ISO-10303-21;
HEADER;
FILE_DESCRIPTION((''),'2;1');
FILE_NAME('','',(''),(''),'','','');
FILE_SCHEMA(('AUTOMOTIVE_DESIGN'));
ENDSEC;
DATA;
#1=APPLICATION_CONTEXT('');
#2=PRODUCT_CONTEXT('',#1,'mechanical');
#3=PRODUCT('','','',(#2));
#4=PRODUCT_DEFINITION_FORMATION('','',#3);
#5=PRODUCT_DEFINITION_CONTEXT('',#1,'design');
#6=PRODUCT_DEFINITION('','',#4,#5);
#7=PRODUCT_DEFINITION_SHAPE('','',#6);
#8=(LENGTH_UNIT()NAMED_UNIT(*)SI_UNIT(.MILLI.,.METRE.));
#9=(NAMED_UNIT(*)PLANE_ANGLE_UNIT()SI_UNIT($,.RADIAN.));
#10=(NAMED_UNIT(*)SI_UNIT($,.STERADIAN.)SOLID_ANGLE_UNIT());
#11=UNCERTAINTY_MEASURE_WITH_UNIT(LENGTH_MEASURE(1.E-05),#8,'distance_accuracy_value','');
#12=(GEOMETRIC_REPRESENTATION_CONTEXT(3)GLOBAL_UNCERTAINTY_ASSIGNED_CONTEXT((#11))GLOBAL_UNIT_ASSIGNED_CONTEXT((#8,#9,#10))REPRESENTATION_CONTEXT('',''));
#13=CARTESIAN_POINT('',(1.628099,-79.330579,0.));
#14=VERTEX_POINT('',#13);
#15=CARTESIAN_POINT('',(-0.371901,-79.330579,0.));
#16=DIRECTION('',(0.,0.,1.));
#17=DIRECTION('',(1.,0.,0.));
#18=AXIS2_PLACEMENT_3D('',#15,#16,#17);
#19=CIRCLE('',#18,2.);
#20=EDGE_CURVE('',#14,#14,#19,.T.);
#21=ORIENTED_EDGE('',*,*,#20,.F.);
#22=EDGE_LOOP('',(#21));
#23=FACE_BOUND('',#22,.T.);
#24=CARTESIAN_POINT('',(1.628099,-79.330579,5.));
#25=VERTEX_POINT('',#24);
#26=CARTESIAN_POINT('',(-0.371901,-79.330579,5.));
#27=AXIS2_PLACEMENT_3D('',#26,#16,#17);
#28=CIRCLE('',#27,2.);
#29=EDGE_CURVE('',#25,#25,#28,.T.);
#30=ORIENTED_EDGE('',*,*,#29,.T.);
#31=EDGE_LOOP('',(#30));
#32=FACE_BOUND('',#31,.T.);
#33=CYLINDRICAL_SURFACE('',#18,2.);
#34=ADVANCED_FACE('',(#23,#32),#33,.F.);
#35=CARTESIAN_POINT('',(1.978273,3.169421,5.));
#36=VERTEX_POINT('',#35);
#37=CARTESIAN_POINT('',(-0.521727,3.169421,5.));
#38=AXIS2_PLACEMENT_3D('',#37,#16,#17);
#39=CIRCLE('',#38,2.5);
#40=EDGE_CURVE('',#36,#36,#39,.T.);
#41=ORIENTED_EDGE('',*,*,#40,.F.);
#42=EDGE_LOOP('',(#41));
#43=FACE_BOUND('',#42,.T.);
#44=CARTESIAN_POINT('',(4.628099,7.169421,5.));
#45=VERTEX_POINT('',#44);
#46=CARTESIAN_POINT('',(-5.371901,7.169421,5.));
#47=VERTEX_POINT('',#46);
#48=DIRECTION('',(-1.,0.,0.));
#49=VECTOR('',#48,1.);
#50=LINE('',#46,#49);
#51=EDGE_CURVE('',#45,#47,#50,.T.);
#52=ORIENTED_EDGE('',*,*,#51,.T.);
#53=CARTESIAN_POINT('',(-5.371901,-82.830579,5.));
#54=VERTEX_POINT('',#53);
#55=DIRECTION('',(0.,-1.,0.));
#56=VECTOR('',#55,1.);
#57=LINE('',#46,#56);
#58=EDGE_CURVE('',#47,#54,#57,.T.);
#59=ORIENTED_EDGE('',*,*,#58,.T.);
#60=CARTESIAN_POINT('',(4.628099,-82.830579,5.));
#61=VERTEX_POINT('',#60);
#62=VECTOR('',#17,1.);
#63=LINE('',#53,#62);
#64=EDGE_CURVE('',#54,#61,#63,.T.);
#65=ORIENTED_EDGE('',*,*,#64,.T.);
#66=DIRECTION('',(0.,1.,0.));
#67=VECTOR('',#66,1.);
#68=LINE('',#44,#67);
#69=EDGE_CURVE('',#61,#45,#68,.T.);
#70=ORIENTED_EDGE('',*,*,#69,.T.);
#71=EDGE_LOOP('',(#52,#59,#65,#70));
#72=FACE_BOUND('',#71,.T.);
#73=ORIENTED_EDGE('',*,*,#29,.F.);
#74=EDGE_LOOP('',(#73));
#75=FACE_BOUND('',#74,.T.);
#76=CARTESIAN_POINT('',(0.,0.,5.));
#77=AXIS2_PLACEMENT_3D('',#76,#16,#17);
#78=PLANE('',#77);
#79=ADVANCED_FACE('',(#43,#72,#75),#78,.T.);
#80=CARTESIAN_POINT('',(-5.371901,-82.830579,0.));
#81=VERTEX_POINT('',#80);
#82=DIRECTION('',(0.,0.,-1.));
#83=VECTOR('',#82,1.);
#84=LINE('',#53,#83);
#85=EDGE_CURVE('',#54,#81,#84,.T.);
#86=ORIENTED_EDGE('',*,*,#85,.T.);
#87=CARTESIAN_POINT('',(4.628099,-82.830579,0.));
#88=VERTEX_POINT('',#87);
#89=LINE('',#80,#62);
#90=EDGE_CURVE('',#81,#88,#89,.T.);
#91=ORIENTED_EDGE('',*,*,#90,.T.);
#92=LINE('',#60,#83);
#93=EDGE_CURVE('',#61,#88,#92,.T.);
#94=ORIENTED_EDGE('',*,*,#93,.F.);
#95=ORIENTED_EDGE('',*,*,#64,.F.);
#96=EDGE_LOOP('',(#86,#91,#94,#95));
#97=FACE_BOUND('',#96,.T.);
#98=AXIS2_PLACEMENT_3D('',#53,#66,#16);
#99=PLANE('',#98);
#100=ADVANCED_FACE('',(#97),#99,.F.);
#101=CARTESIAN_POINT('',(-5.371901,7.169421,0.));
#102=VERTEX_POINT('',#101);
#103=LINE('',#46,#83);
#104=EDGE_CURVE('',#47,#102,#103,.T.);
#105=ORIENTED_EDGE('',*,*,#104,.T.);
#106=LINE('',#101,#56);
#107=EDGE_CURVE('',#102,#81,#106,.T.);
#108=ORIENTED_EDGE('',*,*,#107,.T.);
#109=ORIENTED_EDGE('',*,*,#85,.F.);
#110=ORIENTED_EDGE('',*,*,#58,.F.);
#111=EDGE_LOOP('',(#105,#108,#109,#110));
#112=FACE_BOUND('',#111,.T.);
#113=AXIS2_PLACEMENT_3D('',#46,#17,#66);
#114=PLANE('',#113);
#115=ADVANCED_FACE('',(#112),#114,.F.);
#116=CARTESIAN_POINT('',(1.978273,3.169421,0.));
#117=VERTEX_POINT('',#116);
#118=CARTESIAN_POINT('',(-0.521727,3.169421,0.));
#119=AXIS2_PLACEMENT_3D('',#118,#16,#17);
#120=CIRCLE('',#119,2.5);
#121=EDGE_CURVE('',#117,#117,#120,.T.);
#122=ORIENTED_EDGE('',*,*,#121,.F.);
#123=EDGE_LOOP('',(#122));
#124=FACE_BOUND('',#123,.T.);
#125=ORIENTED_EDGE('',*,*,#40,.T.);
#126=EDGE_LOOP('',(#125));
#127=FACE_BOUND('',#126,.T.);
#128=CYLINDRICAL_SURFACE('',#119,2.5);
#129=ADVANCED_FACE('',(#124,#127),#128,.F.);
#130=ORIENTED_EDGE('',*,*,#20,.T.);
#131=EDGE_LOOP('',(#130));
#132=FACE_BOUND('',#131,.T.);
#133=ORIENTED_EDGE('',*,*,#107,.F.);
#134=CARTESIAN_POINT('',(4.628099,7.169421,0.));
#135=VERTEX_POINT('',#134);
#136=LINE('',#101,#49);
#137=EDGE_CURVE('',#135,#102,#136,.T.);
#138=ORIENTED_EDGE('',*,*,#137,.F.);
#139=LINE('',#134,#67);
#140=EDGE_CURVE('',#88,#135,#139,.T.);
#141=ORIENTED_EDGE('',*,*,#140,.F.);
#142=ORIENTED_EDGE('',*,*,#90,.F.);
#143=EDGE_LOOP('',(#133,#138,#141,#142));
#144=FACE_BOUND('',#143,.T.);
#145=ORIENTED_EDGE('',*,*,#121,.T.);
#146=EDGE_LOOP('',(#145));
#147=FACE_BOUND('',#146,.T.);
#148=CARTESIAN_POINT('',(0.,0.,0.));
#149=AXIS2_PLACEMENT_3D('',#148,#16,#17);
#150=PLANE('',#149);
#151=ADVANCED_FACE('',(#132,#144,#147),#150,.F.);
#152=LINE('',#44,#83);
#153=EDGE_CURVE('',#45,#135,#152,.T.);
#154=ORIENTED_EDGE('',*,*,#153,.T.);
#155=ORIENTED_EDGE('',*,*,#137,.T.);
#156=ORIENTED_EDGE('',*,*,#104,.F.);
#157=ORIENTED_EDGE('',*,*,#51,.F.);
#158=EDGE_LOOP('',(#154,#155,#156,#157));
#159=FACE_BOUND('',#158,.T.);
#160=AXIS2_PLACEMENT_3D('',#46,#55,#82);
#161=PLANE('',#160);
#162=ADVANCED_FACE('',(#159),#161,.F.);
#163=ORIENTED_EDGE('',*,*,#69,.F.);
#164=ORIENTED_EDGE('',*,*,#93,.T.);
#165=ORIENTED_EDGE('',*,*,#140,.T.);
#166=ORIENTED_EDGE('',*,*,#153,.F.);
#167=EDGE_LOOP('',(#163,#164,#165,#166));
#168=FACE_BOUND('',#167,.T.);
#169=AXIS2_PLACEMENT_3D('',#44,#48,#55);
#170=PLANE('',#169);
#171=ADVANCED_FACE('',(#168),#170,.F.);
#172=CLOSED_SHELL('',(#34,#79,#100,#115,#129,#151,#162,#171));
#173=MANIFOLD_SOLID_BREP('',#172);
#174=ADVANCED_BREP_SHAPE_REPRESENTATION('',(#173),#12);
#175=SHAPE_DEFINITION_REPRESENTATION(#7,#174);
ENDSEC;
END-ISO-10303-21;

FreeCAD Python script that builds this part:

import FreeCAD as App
import Part
import Sketcher

V = App.Vector

doc = App.newDocument("Part")
body = doc.addObject("PartDesign::Body", "Body")

# Sketch on XY plane
sketch1 = doc.addObject("Sketcher::SketchObject", "Sketch")
body.addObject(sketch1)
sketch1.AttachmentSupport = (doc.XY_Plane, [""])
sketch1.MapMode = "FlatFace"
sketch1.addGeometry(Part.LineSegment(V(-5, 7, 0), V(-5, -83, 0)), False)
sketch1.addGeometry(Part.LineSegment(V(-5, -83, 0), V(5, -83, 0)), False)
sketch1.addGeometry(Part.LineSegment(V(5, -83, 0), V(5, 7, 0)), False)
sketch1.addGeometry(Part.LineSegment(V(5, 7, 0), V(-5, 7, 0)), False)
sketch1.addConstraint(Sketcher.Constraint("Coincident", 0, 2, 1, 1))
sketch1.addConstraint(Sketcher.Constraint("Coincident", 1, 2, 2, 1))
sketch1.addConstraint(Sketcher.Constraint("Coincident", 2, 2, 3, 1))
sketch1.addConstraint(Sketcher.Constraint("Coincident", 3, 2, 0, 1))
sketch1.addConstraint(Sketcher.Constraint("Vertical", 0))
sketch1.addConstraint(Sketcher.Constraint("Horizontal", 1))
sketch1.addConstraint(Sketcher.Constraint("Vertical", 2))
sketch1.addConstraint(Sketcher.Constraint("Horizontal", 3))
sketch1.addConstraint(Sketcher.Constraint("DistanceX", 1, 1, 1, 2, 10.0))
sketch1.addConstraint(Sketcher.Constraint("DistanceY", 0, 2, 0, 1, 90.0))
sketch1.addConstraint(Sketcher.Constraint("DistanceX", 0, 2, -1, 1, 5.371901))
sketch1.addConstraint(Sketcher.Constraint("DistanceY", 0, 2, -1, 1, 82.830579))
pad1 = doc.addObject("PartDesign::Pad", "Pad")
body.addObject(pad1)
pad1.Profile = sketch1
pad1.Length = 5

# Sketch on XY plane
sketch2 = doc.addObject("Sketcher::SketchObject", "Sketch001")
body.addObject(sketch2)
sketch2.AttachmentSupport = (doc.XY_Plane, [""])
sketch2.MapMode = "FlatFace"
sketch2.AttachmentOffset = App.Placement(V(0, 0, 5), App.Rotation())
sketch2.addGeometry(Part.Circle(V(-0.5, 3.2, 0), V(0, 0, 1), 2.5), False)
sketch2.addGeometry(Part.Circle(V(-0.4, -79.3, 0), V(0, 0, 1), 2), False)
sketch2.addConstraint(Sketcher.Constraint("Diameter", 0, 5.0))
sketch2.addConstraint(Sketcher.Constraint("Diameter", 1, 4.0))
sketch2.addConstraint(Sketcher.Constraint("DistanceY", 1, 3, 0, 3, 82.5))
sketch2.addConstraint(Sketcher.Constraint("DistanceX", 1, 3, -1, 1, 0.371901))
sketch2.addConstraint(Sketcher.Constraint("DistanceY", -1, 1, 0, 3, 3.169421))
sketch2.addConstraint(Sketcher.Constraint("DistanceX", 0, 3, -1, 1, 0.521727))
pocket1 = doc.addObject("PartDesign::Pocket", "Pocket")
body.addObject(pocket1)
pocket1.Profile = sketch2
pocket1.Type = "ThroughAll"

doc.recompute()
